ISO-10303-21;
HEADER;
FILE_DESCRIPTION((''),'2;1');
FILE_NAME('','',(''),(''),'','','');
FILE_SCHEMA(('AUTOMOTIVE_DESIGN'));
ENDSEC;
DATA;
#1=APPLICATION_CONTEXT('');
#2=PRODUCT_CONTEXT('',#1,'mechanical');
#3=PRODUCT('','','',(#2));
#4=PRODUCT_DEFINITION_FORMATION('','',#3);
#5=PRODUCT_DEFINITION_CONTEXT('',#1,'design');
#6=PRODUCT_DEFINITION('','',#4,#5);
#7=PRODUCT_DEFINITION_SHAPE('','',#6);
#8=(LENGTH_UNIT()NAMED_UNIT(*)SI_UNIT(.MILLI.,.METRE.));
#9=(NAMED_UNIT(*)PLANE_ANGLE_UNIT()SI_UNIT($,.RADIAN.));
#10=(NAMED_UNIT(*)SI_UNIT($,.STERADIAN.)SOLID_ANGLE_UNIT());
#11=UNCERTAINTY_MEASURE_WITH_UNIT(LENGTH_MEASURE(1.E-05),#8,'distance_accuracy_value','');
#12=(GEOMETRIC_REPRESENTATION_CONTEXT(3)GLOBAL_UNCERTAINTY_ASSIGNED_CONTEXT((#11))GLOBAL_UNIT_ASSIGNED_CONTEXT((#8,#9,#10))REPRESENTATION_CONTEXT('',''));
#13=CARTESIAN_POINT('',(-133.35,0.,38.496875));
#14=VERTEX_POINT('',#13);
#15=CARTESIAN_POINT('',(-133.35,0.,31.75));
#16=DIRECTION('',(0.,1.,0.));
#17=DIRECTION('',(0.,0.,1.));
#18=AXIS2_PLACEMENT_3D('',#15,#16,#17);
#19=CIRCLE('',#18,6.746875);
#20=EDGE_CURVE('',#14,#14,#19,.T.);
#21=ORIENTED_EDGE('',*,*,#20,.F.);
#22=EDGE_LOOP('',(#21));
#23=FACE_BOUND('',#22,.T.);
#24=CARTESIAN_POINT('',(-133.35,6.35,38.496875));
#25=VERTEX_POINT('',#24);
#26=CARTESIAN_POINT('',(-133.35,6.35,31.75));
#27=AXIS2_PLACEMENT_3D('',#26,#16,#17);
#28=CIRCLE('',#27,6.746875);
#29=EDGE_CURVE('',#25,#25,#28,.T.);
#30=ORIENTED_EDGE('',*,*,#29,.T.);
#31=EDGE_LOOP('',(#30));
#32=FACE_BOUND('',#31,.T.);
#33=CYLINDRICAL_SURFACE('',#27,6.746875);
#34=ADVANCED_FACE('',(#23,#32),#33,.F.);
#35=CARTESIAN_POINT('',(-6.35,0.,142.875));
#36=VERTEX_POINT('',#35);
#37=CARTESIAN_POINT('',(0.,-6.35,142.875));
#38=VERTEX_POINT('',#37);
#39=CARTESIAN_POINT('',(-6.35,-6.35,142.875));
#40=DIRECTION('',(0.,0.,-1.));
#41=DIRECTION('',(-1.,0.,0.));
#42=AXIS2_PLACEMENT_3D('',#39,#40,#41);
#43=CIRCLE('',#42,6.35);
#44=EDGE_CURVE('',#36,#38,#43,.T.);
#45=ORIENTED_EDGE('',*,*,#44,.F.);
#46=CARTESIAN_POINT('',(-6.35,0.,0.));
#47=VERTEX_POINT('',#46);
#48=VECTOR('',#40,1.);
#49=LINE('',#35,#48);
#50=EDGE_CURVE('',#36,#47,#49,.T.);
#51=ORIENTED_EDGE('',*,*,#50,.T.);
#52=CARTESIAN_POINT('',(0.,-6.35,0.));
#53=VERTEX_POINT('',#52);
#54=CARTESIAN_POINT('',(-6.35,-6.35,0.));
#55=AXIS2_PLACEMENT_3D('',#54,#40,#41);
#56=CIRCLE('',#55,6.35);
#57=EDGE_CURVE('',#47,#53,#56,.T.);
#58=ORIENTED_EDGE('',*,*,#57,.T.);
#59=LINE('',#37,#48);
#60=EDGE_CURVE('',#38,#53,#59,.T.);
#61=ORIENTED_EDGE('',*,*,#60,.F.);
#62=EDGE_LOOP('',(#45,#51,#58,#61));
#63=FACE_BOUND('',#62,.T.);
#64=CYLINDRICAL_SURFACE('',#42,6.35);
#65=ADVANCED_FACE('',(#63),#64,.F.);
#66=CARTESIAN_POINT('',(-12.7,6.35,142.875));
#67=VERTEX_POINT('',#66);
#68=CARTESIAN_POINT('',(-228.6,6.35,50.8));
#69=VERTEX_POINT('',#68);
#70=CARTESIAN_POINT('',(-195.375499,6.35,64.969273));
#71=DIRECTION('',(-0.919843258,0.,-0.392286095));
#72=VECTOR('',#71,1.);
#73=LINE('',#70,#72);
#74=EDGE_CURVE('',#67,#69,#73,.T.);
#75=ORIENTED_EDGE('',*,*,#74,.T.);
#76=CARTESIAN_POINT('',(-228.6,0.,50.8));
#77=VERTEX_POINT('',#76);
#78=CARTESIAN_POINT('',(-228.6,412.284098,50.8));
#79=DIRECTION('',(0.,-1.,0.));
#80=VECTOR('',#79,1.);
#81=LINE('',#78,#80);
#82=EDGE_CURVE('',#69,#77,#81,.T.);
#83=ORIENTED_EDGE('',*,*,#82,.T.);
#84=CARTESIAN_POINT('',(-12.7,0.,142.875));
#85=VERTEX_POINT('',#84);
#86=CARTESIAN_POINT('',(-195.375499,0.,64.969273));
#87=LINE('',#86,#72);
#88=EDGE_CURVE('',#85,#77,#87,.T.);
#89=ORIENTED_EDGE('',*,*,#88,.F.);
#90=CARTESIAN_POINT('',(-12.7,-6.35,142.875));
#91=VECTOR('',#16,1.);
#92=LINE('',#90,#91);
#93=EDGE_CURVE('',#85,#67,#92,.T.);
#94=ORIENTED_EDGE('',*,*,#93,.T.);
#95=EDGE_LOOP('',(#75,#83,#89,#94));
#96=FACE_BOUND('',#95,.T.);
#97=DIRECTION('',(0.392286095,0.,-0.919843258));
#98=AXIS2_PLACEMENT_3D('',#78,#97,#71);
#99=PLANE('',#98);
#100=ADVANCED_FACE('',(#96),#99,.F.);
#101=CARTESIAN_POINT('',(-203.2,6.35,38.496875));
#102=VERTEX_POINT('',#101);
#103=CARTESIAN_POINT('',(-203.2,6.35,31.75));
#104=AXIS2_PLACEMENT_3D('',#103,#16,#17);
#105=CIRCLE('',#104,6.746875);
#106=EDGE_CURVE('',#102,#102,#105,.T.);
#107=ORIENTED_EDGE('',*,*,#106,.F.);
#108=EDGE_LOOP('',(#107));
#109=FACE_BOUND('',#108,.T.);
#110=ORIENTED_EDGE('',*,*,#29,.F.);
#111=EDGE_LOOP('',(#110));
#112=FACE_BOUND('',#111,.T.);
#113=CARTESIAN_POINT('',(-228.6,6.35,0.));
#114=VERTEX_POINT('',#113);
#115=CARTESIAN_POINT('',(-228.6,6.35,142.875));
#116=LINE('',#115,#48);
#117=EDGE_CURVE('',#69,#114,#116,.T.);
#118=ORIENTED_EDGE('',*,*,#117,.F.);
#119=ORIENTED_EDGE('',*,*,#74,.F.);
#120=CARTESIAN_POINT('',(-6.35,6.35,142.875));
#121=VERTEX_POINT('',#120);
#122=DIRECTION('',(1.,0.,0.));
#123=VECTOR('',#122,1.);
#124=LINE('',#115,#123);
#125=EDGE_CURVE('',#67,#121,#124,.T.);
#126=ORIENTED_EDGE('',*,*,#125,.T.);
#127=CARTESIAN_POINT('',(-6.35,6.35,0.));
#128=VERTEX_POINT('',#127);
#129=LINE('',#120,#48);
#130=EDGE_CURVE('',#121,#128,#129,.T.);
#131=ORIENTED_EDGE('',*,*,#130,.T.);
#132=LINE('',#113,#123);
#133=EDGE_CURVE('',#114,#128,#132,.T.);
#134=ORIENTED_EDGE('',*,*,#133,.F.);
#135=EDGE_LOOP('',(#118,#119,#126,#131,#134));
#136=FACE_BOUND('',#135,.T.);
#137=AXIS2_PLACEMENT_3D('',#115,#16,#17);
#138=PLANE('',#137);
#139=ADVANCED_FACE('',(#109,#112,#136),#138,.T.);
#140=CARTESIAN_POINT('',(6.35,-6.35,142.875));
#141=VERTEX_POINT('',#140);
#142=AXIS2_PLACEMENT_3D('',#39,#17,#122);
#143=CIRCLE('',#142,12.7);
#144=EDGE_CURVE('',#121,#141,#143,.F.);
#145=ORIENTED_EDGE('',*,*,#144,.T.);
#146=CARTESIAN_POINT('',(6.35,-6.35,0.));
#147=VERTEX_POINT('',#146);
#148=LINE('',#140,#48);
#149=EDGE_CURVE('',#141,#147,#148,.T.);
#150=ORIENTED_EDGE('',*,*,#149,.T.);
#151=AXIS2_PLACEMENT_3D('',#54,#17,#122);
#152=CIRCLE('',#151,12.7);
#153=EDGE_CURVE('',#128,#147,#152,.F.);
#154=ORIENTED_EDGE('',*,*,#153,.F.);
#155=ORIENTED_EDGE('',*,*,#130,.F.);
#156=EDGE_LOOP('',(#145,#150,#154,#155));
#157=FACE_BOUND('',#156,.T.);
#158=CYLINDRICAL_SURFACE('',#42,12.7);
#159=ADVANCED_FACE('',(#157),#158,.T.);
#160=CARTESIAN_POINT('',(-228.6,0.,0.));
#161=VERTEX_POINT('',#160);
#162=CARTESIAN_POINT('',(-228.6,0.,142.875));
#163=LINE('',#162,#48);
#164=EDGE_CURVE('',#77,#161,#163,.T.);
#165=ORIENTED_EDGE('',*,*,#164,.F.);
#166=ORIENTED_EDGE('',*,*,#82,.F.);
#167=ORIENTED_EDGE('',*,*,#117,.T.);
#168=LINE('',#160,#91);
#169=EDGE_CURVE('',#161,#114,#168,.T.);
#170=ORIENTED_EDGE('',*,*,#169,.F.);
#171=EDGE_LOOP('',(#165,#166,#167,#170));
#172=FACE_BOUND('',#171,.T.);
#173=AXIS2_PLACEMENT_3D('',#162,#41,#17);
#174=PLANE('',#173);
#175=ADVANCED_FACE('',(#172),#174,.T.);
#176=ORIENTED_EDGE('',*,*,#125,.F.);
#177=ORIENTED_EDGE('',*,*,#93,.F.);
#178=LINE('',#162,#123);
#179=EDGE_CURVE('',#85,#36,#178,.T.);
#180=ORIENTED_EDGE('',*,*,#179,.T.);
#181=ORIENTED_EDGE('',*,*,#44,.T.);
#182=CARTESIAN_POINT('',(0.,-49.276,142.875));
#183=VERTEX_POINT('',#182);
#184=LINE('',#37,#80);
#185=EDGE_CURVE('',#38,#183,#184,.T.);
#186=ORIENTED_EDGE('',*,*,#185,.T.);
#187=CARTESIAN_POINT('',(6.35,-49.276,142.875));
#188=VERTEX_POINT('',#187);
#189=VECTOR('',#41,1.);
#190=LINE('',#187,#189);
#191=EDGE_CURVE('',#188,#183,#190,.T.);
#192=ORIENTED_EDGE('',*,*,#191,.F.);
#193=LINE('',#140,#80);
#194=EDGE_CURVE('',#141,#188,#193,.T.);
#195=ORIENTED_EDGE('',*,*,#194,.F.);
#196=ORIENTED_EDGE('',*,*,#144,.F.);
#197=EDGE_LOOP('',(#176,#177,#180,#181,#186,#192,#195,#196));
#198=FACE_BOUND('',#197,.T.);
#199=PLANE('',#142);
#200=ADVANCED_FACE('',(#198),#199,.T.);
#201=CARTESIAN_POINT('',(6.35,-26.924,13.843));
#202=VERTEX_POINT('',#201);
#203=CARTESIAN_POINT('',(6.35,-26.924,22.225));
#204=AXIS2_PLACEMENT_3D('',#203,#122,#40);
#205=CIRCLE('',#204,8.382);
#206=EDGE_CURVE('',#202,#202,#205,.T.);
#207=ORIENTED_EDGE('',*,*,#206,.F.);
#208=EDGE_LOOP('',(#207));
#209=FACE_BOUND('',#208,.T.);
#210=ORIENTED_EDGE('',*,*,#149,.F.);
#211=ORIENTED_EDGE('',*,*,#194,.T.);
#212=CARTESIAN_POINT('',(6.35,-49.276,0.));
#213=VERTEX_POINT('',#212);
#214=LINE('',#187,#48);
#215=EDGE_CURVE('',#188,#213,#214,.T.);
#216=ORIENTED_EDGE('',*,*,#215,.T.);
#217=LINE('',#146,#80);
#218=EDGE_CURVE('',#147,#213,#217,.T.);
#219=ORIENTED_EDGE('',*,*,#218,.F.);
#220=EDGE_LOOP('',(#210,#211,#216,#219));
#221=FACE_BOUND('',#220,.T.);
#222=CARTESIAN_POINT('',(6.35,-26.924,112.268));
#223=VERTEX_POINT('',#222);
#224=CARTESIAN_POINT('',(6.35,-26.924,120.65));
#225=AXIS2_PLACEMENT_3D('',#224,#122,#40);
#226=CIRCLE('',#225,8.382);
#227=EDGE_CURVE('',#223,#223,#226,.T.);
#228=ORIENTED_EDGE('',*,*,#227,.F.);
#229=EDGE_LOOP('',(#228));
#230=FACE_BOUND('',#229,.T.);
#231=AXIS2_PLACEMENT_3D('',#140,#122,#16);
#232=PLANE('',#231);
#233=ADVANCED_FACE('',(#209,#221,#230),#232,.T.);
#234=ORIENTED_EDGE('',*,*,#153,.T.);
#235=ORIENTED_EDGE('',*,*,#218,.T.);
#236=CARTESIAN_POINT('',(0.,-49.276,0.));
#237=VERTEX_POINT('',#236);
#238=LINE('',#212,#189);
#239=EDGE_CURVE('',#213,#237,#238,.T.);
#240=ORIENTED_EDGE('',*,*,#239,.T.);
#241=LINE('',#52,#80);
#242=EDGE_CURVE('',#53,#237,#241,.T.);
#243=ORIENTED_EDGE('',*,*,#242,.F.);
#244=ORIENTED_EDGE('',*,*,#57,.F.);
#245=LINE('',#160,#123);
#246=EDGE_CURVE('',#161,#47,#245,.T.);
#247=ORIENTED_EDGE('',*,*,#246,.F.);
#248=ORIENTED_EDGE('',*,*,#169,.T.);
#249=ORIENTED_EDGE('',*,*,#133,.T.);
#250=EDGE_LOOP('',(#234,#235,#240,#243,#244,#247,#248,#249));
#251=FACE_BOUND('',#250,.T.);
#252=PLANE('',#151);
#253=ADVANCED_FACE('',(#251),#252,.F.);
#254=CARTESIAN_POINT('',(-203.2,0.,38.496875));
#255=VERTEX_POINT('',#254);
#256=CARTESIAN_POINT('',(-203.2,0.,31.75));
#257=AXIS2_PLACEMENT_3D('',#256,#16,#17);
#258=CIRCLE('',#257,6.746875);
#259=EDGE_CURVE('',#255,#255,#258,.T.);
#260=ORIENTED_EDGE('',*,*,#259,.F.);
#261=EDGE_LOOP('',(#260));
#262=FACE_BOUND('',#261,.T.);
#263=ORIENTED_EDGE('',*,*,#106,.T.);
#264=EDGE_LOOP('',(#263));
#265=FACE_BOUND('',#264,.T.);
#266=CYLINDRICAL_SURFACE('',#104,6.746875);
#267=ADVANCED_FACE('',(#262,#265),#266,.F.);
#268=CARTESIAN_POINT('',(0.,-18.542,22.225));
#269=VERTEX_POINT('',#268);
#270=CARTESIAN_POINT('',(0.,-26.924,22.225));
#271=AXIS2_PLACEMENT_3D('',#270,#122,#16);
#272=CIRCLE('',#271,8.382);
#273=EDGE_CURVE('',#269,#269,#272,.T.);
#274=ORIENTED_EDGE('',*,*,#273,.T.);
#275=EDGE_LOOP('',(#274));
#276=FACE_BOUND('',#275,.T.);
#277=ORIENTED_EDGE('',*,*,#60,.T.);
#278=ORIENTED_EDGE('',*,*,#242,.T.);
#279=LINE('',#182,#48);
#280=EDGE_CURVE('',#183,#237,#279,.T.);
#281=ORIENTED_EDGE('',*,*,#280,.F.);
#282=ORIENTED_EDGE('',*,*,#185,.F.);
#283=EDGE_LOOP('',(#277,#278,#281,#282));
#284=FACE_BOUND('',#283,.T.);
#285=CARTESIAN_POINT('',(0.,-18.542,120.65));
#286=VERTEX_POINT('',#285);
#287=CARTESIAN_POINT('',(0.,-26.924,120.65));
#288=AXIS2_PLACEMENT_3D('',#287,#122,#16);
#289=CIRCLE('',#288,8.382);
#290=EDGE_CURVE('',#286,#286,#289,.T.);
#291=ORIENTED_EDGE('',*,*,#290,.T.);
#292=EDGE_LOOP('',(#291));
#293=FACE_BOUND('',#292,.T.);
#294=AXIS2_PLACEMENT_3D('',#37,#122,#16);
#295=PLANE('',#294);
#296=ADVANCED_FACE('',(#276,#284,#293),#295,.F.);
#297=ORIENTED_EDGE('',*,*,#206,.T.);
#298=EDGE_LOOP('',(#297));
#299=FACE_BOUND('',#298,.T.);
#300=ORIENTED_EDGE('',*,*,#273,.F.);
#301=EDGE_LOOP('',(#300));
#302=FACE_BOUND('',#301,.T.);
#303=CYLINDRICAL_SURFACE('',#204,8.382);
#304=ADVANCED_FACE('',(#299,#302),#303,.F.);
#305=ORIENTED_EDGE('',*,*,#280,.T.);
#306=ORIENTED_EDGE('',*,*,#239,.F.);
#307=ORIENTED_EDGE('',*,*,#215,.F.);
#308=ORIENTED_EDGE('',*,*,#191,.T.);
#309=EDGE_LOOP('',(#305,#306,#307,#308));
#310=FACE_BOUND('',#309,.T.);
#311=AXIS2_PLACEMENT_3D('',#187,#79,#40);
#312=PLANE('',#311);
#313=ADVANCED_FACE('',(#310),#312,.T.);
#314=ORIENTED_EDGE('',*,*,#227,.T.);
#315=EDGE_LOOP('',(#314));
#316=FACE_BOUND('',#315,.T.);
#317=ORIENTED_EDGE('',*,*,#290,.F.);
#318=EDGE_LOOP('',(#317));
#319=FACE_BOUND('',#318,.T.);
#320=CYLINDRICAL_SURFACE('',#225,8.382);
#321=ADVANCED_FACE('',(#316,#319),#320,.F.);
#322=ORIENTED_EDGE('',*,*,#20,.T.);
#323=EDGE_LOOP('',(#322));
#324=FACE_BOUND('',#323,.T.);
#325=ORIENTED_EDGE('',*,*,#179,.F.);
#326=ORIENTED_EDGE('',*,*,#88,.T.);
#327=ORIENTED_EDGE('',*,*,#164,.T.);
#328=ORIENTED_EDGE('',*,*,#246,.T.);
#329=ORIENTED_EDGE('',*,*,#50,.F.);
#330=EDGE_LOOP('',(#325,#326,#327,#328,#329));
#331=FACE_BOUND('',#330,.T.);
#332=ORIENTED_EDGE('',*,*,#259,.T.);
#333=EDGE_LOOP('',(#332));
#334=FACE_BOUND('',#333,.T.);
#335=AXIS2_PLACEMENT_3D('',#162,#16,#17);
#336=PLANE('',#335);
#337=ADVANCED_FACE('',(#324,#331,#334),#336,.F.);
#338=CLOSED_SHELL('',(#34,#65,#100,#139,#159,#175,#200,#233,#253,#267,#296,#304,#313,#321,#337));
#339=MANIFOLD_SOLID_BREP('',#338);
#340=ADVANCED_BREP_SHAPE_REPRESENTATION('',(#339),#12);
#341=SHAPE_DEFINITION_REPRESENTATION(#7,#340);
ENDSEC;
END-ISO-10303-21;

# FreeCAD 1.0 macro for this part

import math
import FreeCAD as App
import Part
import Sketcher

V = App.Vector
Q = App.Units.Quantity


def add_polygon(sketch, points):
    """Adds a closed chain of lines whose ends are joined by coincident constraints."""
    first, n = sketch.GeometryCount, len(points)
    for a, b in zip(points, points[1:] + points[:1]):
        sketch.addGeometry(Part.LineSegment(App.Vector(*a, 0), App.Vector(*b, 0)), False)
    for i in range(n):
        sketch.addConstraint(Sketcher.Constraint("Coincident", first + i, 2, first + (i + 1) % n, 1))

doc = App.newDocument("Part")
body = doc.addObject("PartDesign::Body", "Body")

sketch1 = doc.addObject("Sketcher::SketchObject", "Sketch")
body.addObject(sketch1)
sketch1.AttachmentSupport = (doc.XY_Plane, [""])
sketch1.MapMode = "FlatFace"
sketch1.addGeometry([
    Part.LineSegment(V(-229, 0, 0), V(-6, 0, 0)),
    Part.ArcOfCircle(Part.Circle(V(-6, -6, 0), V(0, 0, 1), 6), math.radians(0), math.radians(90)),
    Part.LineSegment(V(0, -6, 0), V(0, -49, 0)),
    Part.LineSegment(V(0, -49, 0), V(6, -49, 0)),
    Part.LineSegment(V(6, -49, 0), V(6, -6, 0)),
    Part.ArcOfCircle(Part.Circle(V(-6, -6, 0), V(0, 0, 1), 13), math.radians(0), math.radians(90)),
    Part.LineSegment(V(-6, 6, 0), V(-229, 6, 0)),
    Part.LineSegment(V(-229, 6, 0), V(-229, 0, 0)),
], False)
sketch1.addConstraint([
    Sketcher.Constraint("Tangent", 0, 2, 1, 2),
    Sketcher.Constraint("Tangent", 1, 1, 2, 1),
    Sketcher.Constraint("Coincident", 2, 2, 3, 1),
    Sketcher.Constraint("Coincident", 3, 2, 4, 1),
    Sketcher.Constraint("Tangent", 4, 2, 5, 1),
    Sketcher.Constraint("Tangent", 5, 2, 6, 1),
    Sketcher.Constraint("Coincident", 6, 2, 7, 1),
    Sketcher.Constraint("Coincident", 7, 2, 0, 1),
    Sketcher.Constraint("Horizontal", 0),
    Sketcher.Constraint("Vertical", 2),
    Sketcher.Constraint("Horizontal", 3),
    Sketcher.Constraint("Vertical", 4),
    Sketcher.Constraint("Horizontal", 6),
    Sketcher.Constraint("Vertical", 7),
    Sketcher.Constraint("Coincident", 5, 3, 1, 3),
    Sketcher.Constraint("Symmetric", 4, 2, 5, 2, -1, 1),
    Sketcher.Constraint("PointOnObject", 0, 2, -1),
    Sketcher.Constraint("Radius", 5, Q("0.5 in")),
    Sketcher.Constraint("DistanceX", 6, 2, -1, 1, Q("9 in")),
    Sketcher.Constraint("DistanceY", 2, 2, 2, 1, Q("1.69 in")),
])
pad1 = doc.addObject("PartDesign::Pad", "Pad")
body.addObject(pad1)
pad1.Profile = sketch1
pad1.Length = Q("5.625 in")

sketch2 = doc.addObject("Sketcher::SketchObject", "Sketch001")
body.addObject(sketch2)
sketch2.AttachmentSupport = (doc.XZ_Plane, [""])
sketch2.MapMode = "FlatFace"
add_polygon(sketch2, [(473, 350), (-714, -156), (-1128, 815), (59, 1321)])
sketch2.addConstraint([
    Sketcher.Constraint("Perpendicular", 0, 1),
    Sketcher.Constraint("Perpendicular", 1, 2),
    Sketcher.Constraint("Perpendicular", 2, 3),
    Sketcher.Constraint("Distance", 0, 1290.289688),
    Sketcher.Constraint("DistanceY", 0, 2, -1, 1, 156.243852),
    Sketcher.Constraint("DistanceX", 1, 2, -1, 1, 1128.169839),
    Sketcher.Constraint("DistanceY", -1, 1, 1, 2, 814.720419),
    Sketcher.Constraint("DistanceX", -1, 1, 2, 2, 58.694432),
])
pocket1 = doc.addObject("PartDesign::Pocket", "Pocket")
body.addObject(pocket1)
pocket1.Profile = sketch2
pocket1.Type = "ThroughAll"
pocket1.Midplane = True

sketch3 = doc.addObject("Sketcher::SketchObject", "Sketch002")
body.addObject(sketch3)
sketch3.AttachmentSupport = (doc.YZ_Plane, [""])
sketch3.MapMode = "FlatFace"
sketch3.AttachmentOffset = App.Placement(V(0, 0, 0.25 * 25.4), App.Rotation())
sketch3.addGeometry([
    Part.Circle(V(-27, 121, 0), V(0, 0, 1), 8),
    Part.Circle(V(-27, 22, 0), V(0, 0, 1), 8),
], False)
sketch3.addConstraint([
    Sketcher.Constraint("Equal", 0, 1),
    Sketcher.Constraint("Vertical", 0, 3, 1, 3),
    Sketcher.Constraint("Diameter", 0, Q("0.66 in")),
    Sketcher.Constraint("DistanceX", 0, 3, -1, 1, Q("1.06 in")),
    Sketcher.Constraint("DistanceY", -1, 1, 0, 3, Q("4.75 in")),
    Sketcher.Constraint("DistanceY", -1, 1, 1, 3, Q("0.875 in")),
])
doc.recompute()
hole = doc.addObject("PartDesign::Hole", "Hole")
body.addObject(hole)
hole.Profile = sketch3
hole.ThreadType = "None"
hole.Diameter = Q("0.66 in")
hole.DepthType = "ThroughAll"

sketch4 = doc.addObject("Sketcher::SketchObject", "Sketch003")
body.addObject(sketch4)
sketch4.AttachmentSupport = (doc.XZ_Plane, [""])
sketch4.MapMode = "FlatFace"
sketch4.AttachmentOffset = App.Placement(V(0, 0, -0.25 * 25.4), App.Rotation())
sketch4.addGeometry([
    Part.Circle(V(-203, 32, 0), V(0, 0, 1), 7),
    Part.Circle(V(-133, 32, 0), V(0, 0, 1), 7),
], False)
sketch4.addConstraint([
    Sketcher.Constraint("Equal", 0, 1),
    Sketcher.Constraint("Horizontal", 0, 3, 1, 3),
    Sketcher.Constraint("Diameter", 0, Q("0.53125 in")),
    Sketcher.Constraint("DistanceX", 0, 3, -1, 1, Q("8 in")),
    Sketcher.Constraint("DistanceY", -1, 1, 0, 3, Q("1.25 in")),
    Sketcher.Constraint("DistanceX", 1, 3, -1, 1, Q("5.25 in")),
])
doc.recompute()
hole2 = doc.addObject("PartDesign::Hole", "Hole001")
body.addObject(hole2)
hole2.Profile = sketch4
hole2.ThreadType = "None"
hole2.Diameter = Q("0.53125 in")
hole2.DepthType = "Dimension"
hole2.Depth = Q("1 in")
hole2.DrillPoint = "Flat"
hole2.Reversed = True

doc.recompute()
